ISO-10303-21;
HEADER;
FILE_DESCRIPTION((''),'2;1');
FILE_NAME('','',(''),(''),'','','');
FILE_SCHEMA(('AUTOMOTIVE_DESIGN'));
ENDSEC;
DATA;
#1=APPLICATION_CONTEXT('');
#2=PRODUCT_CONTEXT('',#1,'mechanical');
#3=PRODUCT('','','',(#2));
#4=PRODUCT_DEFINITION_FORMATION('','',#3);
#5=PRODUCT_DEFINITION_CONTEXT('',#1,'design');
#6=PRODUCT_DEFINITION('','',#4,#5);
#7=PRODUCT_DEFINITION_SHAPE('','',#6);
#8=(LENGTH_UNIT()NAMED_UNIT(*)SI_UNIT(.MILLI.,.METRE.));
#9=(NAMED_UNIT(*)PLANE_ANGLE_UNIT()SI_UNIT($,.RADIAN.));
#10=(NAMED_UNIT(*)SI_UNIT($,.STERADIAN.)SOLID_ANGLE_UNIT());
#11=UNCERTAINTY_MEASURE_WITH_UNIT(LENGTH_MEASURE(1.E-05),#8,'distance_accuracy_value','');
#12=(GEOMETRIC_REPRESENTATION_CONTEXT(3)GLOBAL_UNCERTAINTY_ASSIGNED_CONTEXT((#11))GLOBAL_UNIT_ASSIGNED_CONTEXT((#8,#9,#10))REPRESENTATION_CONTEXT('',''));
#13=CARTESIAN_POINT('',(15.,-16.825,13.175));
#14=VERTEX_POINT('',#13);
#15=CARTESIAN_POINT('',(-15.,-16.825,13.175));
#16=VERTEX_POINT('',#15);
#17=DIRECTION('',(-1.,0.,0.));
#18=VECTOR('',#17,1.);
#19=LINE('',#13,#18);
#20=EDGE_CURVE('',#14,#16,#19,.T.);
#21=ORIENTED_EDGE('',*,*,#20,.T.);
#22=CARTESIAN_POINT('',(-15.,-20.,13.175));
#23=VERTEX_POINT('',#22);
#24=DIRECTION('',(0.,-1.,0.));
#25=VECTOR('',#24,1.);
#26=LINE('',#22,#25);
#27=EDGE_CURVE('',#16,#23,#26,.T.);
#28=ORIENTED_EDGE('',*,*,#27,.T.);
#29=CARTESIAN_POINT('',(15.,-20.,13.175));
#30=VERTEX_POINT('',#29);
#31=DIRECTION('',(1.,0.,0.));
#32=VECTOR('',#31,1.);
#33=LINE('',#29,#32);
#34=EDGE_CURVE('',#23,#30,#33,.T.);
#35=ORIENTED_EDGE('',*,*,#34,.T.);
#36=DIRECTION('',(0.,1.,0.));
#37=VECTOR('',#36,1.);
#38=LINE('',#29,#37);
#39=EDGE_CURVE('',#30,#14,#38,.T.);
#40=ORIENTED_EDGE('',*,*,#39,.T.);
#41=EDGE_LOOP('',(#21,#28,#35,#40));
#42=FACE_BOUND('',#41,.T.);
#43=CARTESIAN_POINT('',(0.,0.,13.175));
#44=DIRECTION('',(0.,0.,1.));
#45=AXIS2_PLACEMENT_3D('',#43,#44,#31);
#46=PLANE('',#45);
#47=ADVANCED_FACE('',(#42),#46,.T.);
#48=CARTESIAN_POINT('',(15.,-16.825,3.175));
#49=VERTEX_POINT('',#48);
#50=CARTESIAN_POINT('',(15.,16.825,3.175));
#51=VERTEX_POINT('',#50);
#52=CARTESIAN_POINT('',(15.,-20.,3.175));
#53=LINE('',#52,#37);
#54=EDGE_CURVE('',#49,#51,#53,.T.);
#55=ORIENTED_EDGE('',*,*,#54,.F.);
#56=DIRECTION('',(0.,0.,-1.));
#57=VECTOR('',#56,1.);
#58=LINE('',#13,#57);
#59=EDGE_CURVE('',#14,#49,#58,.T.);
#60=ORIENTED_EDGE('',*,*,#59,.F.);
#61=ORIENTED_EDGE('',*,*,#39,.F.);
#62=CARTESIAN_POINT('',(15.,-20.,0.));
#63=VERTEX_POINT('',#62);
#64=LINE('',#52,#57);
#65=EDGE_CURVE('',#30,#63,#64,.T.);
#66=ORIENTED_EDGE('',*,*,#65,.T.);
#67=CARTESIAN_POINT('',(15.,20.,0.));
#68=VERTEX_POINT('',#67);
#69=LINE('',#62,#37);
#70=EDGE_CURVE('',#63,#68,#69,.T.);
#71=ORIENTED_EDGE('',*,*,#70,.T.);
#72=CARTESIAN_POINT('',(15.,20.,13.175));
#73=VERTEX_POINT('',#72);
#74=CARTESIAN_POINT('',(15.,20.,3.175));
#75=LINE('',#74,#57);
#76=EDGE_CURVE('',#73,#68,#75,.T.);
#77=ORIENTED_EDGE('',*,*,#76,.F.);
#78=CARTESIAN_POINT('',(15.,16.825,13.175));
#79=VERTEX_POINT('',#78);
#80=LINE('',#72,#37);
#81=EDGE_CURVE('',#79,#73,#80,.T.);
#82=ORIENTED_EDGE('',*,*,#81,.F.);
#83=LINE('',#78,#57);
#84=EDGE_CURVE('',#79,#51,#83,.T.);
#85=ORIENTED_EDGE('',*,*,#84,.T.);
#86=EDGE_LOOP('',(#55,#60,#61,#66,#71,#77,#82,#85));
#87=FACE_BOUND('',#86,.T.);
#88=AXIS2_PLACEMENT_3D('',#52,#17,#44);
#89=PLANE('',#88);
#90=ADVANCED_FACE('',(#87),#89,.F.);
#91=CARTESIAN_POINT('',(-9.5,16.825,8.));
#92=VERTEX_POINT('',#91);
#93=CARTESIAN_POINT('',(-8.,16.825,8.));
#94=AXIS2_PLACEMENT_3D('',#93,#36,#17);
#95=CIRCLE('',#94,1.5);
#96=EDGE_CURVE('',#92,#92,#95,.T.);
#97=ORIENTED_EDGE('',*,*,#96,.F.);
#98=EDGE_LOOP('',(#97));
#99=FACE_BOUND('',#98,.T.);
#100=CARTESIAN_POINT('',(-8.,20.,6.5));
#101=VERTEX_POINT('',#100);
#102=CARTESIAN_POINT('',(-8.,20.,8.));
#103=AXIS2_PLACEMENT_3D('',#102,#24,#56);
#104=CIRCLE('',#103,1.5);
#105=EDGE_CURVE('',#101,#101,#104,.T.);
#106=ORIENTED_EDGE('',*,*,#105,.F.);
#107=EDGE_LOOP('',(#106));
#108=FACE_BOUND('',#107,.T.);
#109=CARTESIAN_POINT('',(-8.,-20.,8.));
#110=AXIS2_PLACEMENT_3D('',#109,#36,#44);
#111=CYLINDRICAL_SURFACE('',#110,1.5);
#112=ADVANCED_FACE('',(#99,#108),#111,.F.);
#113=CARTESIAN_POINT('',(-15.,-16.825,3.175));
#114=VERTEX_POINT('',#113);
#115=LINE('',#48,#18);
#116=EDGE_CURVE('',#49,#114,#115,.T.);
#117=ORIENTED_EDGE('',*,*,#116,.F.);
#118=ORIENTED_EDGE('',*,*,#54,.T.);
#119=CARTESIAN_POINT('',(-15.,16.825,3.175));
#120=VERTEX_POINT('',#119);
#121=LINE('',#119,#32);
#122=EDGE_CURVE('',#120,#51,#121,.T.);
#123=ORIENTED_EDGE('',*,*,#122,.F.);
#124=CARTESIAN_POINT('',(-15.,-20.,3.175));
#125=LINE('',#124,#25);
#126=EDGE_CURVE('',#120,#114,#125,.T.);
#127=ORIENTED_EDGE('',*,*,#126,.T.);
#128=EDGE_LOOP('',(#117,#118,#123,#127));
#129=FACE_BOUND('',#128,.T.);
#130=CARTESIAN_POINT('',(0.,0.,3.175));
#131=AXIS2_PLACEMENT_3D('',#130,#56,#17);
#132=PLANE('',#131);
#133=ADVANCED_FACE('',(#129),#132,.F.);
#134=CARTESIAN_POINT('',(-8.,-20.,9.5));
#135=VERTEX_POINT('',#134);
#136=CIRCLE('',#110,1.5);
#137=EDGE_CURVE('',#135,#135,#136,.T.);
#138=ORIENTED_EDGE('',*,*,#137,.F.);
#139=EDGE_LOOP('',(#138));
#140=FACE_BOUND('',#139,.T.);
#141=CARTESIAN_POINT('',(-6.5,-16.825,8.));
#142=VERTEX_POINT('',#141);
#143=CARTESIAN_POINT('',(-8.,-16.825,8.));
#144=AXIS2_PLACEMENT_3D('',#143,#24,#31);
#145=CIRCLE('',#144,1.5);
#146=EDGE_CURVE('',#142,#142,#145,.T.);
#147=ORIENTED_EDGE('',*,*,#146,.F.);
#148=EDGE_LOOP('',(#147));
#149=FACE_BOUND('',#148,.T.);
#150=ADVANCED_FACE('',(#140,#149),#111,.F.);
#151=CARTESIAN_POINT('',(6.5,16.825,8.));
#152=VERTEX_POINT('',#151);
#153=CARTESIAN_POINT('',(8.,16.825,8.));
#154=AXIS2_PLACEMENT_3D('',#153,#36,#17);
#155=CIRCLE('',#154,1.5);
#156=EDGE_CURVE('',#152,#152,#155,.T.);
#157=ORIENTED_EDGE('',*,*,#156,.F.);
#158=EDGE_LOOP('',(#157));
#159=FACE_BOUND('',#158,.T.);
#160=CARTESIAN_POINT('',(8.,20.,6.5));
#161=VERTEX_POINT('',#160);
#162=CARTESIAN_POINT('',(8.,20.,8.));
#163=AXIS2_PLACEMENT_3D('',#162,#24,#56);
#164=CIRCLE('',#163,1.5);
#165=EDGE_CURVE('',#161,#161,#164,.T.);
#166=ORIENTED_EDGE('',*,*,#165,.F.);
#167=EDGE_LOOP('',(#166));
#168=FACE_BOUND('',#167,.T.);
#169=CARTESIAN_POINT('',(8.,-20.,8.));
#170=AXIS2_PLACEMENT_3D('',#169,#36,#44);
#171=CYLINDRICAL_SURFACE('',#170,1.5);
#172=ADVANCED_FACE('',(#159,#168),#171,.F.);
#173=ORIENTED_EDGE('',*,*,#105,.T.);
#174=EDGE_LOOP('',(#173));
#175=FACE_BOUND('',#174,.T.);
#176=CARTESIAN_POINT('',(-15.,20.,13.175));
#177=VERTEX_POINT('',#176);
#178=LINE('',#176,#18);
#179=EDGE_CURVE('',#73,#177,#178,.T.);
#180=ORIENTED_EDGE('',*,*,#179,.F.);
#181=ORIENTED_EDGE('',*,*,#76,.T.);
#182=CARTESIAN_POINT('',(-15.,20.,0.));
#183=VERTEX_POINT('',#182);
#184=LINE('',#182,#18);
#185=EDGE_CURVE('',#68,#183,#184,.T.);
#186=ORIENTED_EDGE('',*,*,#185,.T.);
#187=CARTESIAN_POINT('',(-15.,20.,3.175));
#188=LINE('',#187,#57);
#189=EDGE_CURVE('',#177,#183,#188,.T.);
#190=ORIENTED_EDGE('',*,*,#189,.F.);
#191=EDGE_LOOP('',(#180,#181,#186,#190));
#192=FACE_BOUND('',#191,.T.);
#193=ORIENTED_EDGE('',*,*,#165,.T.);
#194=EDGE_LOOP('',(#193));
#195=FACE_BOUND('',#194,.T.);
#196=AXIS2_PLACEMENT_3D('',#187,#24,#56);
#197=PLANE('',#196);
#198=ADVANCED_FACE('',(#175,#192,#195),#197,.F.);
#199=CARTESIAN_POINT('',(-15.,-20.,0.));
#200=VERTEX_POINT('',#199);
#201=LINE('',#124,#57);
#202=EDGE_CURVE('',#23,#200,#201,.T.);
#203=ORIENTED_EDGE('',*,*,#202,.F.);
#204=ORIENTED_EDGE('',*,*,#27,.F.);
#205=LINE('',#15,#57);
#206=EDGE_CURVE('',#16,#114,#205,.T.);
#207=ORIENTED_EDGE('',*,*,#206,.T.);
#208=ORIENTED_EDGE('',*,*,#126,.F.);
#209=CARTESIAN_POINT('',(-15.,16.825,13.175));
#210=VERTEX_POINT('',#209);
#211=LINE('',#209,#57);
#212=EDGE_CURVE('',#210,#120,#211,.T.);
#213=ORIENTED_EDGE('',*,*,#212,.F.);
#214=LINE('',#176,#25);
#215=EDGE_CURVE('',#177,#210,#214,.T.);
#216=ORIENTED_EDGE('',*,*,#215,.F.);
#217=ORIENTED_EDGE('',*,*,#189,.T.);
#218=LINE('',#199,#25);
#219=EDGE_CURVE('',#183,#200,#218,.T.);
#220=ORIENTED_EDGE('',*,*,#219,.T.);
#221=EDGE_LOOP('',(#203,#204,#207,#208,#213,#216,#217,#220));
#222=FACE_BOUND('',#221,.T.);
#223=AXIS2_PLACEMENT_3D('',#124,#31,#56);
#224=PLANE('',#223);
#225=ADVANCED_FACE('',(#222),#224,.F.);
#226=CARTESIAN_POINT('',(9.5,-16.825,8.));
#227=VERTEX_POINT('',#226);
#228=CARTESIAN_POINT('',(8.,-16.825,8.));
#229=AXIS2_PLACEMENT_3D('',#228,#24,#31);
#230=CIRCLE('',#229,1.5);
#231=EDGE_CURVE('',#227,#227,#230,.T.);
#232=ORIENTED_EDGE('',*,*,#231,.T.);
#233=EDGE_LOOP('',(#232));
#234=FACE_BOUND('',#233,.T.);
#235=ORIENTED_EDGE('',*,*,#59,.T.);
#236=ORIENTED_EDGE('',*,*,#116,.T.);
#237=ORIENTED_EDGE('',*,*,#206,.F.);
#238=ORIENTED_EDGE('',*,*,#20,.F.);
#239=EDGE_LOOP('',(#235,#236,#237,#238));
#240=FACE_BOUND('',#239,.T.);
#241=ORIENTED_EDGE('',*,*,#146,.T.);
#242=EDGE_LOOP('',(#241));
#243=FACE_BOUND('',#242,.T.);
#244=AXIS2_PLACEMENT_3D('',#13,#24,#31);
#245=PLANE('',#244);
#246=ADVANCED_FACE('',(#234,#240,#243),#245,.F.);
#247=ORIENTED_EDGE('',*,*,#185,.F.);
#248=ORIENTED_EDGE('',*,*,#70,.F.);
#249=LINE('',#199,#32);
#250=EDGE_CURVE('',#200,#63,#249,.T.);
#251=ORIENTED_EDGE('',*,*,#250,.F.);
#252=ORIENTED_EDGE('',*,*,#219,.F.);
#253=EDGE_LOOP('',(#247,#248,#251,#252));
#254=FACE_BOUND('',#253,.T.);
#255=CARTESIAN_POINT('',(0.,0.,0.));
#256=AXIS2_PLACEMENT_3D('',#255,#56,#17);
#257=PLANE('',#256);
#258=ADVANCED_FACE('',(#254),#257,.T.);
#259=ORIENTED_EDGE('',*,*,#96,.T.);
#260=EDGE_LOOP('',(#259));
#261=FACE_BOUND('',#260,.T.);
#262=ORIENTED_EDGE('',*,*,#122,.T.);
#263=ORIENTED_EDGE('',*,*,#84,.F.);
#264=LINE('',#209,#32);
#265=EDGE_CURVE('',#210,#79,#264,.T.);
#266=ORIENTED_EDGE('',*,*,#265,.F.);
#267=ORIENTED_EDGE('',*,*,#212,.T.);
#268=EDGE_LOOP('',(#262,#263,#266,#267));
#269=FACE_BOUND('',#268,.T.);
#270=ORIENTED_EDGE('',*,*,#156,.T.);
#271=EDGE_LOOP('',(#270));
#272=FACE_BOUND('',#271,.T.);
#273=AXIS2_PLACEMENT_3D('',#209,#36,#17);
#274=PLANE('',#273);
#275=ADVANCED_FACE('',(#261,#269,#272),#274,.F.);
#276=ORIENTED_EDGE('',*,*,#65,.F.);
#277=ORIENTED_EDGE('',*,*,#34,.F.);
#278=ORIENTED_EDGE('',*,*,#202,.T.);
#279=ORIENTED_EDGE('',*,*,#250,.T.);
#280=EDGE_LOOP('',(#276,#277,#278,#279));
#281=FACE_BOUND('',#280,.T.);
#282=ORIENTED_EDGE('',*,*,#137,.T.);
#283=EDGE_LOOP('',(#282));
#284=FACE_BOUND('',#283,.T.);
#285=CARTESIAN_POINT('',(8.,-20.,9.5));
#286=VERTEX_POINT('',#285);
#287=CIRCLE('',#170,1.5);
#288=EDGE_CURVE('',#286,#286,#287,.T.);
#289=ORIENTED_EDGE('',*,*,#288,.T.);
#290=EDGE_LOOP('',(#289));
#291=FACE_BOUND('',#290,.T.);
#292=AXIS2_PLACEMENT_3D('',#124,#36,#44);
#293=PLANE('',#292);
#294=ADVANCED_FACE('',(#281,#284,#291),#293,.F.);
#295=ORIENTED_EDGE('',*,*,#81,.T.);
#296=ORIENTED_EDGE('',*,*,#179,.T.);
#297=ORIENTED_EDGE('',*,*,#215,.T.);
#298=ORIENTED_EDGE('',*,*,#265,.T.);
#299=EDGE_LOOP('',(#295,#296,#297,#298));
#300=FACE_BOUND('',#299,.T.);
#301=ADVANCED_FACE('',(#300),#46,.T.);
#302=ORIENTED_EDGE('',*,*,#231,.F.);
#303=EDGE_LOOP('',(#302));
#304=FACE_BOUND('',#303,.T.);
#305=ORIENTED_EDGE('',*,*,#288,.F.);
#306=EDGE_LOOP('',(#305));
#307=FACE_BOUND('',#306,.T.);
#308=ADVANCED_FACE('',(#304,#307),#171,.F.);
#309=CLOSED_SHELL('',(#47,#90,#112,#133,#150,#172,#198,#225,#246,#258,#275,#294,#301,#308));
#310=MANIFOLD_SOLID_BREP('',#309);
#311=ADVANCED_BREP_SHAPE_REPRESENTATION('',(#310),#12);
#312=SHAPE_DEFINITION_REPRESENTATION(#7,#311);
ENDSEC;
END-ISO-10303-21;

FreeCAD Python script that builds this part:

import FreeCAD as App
import Part
import Sketcher
from FreeCAD import Vector
Q = App.Units.Quantity


def add_polygon(sketch, points):
    """Adds a closed chain of lines whose ends are joined by coincident constraints."""
    first, n = sketch.GeometryCount, len(points)
    for a, b in zip(points, points[1:] + points[:1]):
        sketch.addGeometry(Part.LineSegment(App.Vector(*a, 0), App.Vector(*b, 0)), False)
    for i in range(n):
        sketch.addConstraint(Sketcher.Constraint("Coincident", first + i, 2, first + (i + 1) % n, 1))

doc = App.newDocument("Part")
body = doc.addObject("PartDesign::Body", "Body")

# Sketch on XY plane
sketch1 = body.newObject("Sketcher::SketchObject", "Sketch")
sketch1.AttachmentSupport = (doc.getObject("XY_Plane"), [""])
sketch1.MapMode = "FlatFace"
add_polygon(sketch1, [(-15, 20), (-15, -20), (15, -20), (15, 20)])  # lines 0-3
sketch1.addConstraint([
    Sketcher.Constraint("Vertical", 0),
    Sketcher.Constraint("Horizontal", 1),
    Sketcher.Constraint("Vertical", 2),
    Sketcher.Constraint("Horizontal", 3),
    Sketcher.Constraint("Symmetric", 0, 2, 2, 2, -1, 1),
    Sketcher.Constraint("DistanceX", 1, 1, 1, 2, Q("30 mm")),
    Sketcher.Constraint("DistanceY", 0, 2, 0, 1, Q("40 mm")),
])
pad1 = body.newObject("PartDesign::Pad", "Pad")
pad1.Profile = sketch1
pad1.Length = 3.175

# Sketch on XY plane
sketch2 = body.newObject("Sketcher::SketchObject", "Sketch001")
sketch2.AttachmentSupport = (doc.getObject("XY_Plane"), [""])
sketch2.MapMode = "FlatFace"
sketch2.AttachmentOffset = App.Placement(Vector(0, 0, 3.175), App.Rotation())
add_polygon(sketch2, [(-15, 20), (-15, 16.8), (15, 16.8), (15, 20)])  # lines 0-3
add_polygon(sketch2, [(-15, -16.8), (-15, -20), (15, -20), (15, -16.8)])  # lines 4-7
sketch2.addConstraint([
    Sketcher.Constraint("Vertical", 0),
    Sketcher.Constraint("Horizontal", 1),
    Sketcher.Constraint("Vertical", 2),
    Sketcher.Constraint("Horizontal", 3),
    Sketcher.Constraint("Vertical", 4),
    Sketcher.Constraint("Horizontal", 5),
    Sketcher.Constraint("Vertical", 6),
    Sketcher.Constraint("Horizontal", 7),
    Sketcher.Constraint("Symmetric", 2, 2, 4, 2, -1, 1),
    Sketcher.Constraint("Symmetric", 0, 2, 6, 2, -1, 1),
    Sketcher.Constraint("Vertical", 3, 2, 4, 2),
    Sketcher.Constraint("DistanceX", 1, 1, 1, 2, Q("30 mm")),
    Sketcher.Constraint("DistanceY", -1, 1, 2, 2, Q("20 mm")),
    Sketcher.Constraint("DistanceY", 0, 2, 0, 1, Q("3.175 mm")),
])
pad2 = body.newObject("PartDesign::Pad", "Pad001")
pad2.Profile = sketch2
pad2.Length = 10

# Sketch on XZ plane
sketch3 = body.newObject("Sketcher::SketchObject", "Sketch002")
sketch3.AttachmentSupport = (doc.getObject("XZ_Plane"), [""])
sketch3.MapMode = "FlatFace"
sketch3.AttachmentOffset = App.Placement(Vector(0, 0, -20), App.Rotation())
sketch3.addGeometry([
    Part.Circle(Vector(-8, 8, 0), Vector(0, 0, 1), 1.5),
    Part.Circle(Vector(8, 8, 0), Vector(0, 0, 1), 1.5),
], False)
sketch3.addConstraint([
    Sketcher.Constraint("Equal", 0, 1),
    Sketcher.Constraint("Symmetric", 0, 3, 1, 3, -2),
    Sketcher.Constraint("Diameter", 0, Q("3 mm")),
    Sketcher.Constraint("DistanceX", 0, 3, -1, 1, Q("8 mm")),
    Sketcher.Constraint("DistanceY", -1, 1, 0, 3, Q("8 mm")),
])
pocket1 = body.newObject("PartDesign::Pocket", "Pocket")
pocket1.Profile = sketch3
pocket1.Type = "ThroughAll"
pocket1.Midplane = True

doc.recompute()
